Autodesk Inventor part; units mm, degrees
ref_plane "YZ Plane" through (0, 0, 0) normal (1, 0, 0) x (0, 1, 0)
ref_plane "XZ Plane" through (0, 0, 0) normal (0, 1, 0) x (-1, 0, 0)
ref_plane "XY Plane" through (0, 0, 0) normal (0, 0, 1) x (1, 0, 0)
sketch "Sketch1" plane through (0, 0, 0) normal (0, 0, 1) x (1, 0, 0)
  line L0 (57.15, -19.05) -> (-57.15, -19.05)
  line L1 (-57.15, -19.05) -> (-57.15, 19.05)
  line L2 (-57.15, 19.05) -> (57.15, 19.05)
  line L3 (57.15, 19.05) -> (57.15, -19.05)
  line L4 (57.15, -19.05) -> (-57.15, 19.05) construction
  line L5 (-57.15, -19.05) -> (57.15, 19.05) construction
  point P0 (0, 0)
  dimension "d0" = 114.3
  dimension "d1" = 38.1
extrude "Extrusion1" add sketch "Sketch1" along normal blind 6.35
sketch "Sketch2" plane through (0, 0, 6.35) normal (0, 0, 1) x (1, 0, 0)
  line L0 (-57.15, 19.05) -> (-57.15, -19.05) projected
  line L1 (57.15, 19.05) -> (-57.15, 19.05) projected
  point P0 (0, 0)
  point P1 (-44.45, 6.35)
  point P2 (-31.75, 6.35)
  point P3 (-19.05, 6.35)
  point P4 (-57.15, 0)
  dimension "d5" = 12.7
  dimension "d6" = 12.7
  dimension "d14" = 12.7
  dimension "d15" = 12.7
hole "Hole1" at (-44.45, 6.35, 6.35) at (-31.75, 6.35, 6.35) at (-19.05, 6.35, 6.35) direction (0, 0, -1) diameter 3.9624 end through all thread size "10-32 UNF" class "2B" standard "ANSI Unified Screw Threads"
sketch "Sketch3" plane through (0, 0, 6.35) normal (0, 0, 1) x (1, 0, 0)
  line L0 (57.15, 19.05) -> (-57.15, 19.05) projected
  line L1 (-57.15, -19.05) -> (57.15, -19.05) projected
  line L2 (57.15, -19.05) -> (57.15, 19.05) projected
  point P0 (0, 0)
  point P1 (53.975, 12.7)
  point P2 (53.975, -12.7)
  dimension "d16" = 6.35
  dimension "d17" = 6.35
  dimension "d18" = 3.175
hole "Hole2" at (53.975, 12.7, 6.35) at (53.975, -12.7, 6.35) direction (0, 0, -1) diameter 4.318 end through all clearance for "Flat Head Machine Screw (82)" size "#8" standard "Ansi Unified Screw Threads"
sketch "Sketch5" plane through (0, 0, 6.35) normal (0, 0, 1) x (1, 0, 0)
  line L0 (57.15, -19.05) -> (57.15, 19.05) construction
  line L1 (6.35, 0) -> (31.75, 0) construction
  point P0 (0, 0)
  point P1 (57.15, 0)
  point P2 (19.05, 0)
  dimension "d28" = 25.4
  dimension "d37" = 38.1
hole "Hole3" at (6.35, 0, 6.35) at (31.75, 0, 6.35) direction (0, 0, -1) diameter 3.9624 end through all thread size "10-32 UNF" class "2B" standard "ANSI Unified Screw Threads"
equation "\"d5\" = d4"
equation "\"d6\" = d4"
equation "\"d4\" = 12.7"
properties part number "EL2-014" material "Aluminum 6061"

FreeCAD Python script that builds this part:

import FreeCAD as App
import Part
import Sketcher

V = App.Vector
Q = App.Units.Quantity

doc = App.newDocument("Part")
body = doc.addObject("PartDesign::Body", "Body")

sketch1 = body.newObject("Sketcher::SketchObject", "Sketch")
sketch1.AttachmentSupport = (doc.getObject("XY_Plane"), [""])
sketch1.MapMode = "FlatFace"
sketch1.addGeometry([
    Part.LineSegment(V(-57, -19, 0), V(57, -19, 0)),
    Part.LineSegment(V(57, -19, 0), V(57, 19, 0)),
    Part.LineSegment(V(57, 19, 0), V(-57, 19, 0)),
    Part.LineSegment(V(-57, 19, 0), V(-57, -19, 0)),
], False)
sketch1.addConstraint([
    Sketcher.Constraint("Coincident", 0, 2, 1, 1),
    Sketcher.Constraint("Coincident", 1, 2, 2, 1),
    Sketcher.Constraint("Coincident", 2, 2, 3, 1),
    Sketcher.Constraint("Coincident", 3, 2, 0, 1),
    Sketcher.Constraint("Horizontal", 0),
    Sketcher.Constraint("Vertical", 1),
    Sketcher.Constraint("Horizontal", 2),
    Sketcher.Constraint("Vertical", 3),
    Sketcher.Constraint("Symmetric", 0, 2, 2, 2, -1, 1),
    Sketcher.Constraint("DistanceX", 0, 1, 0, 2, Q("4.5 in")),
    Sketcher.Constraint("DistanceY", 1, 1, 1, 2, Q("1.5 in")),
])
pad1 = body.newObject("PartDesign::Pad", "Pad")
pad1.Profile = sketch1
pad1.Length = Q("0.25 in")

sketch2 = body.newObject("Sketcher::SketchObject", "Sketch001")
sketch2.AttachmentSupport = (doc.getObject("XY_Plane"), [""])
sketch2.MapMode = "FlatFace"
sketch2.AttachmentOffset = App.Placement(V(0, 0, 0.25 * 25.4), App.Rotation())
sketch2.addGeometry([
    Part.Circle(V(-44.5, 6.3, 0), V(0, 0, 1), 2),
    Part.Circle(V(-31.8, 6.3, 0), V(0, 0, 1), 2),
    Part.Circle(V(-19.1, 6.3, 0), V(0, 0, 1), 2),
], False)
sketch2.addConstraint([
    Sketcher.Constraint("Equal", 0, 1),
    Sketcher.Constraint("Equal", 1, 2),
    Sketcher.Constraint("Horizontal", 0, 3, 1, 3),
    Sketcher.Constraint("Horizontal", 1, 3, 2, 3),
    Sketcher.Constraint("Diameter", 0, Q("0.156 in")),
    Sketcher.Constraint("DistanceX", 0, 3, 2, 3, Q("1 in")),
    Sketcher.Constraint("DistanceX", 0, 3, 1, 3, Q("0.5 in")),
    Sketcher.Constraint("DistanceX", 0, 3, -1, 1, Q("1.75 in")),
    Sketcher.Constraint("DistanceY", -1, 1, 0, 3, Q("0.25 in")),
])
doc.recompute()
hole = body.newObject("PartDesign::Hole", "Hole")
hole.Profile = sketch2
hole.ThreadType = "None"
hole.Diameter = Q("0.156 in")
hole.DepthType = "ThroughAll"

sketch3 = body.newObject("Sketcher::SketchObject", "Sketch002")
sketch3.AttachmentSupport = (doc.getObject("XY_Plane"), [""])
sketch3.MapMode = "FlatFace"
sketch3.AttachmentOffset = App.Placement(V(0, 0, 0.25 * 25.4), App.Rotation())
sketch3.addGeometry([
    Part.Circle(V(54, 12.7, 0), V(0, 0, 1), 2.2),
    Part.Circle(V(54, -12.7, 0), V(0, 0, 1), 2.2),
], False)
sketch3.addConstraint([
    Sketcher.Constraint("Equal", 0, 1),
    Sketcher.Constraint("Symmetric", 0, 3, 1, 3, -1),
    Sketcher.Constraint("Diameter", 0, Q("0.17 in")),
    Sketcher.Constraint("DistanceY", 1, 3, 0, 3, Q("1 in")),
    Sketcher.Constraint("DistanceX", -1, 1, 0, 3, Q("2.125 in")),
])
doc.recompute()
hole2 = body.newObject("PartDesign::Hole", "Hole001")
hole2.Profile = sketch3
hole2.ThreadType = "None"
hole2.Diameter = Q("0.17 in")
hole2.DepthType = "ThroughAll"

sketch4 = body.newObject("Sketcher::SketchObject", "Sketch003")
sketch4.AttachmentSupport = (doc.getObject("XY_Plane"), [""])
sketch4.MapMode = "FlatFace"
sketch4.AttachmentOffset = App.Placement(V(0, 0, 0.25 * 25.4), App.Rotation())
sketch4.addGeometry([
    Part.Circle(V(6.3, 0, 0), V(0, 0, 1), 2),
    Part.Circle(V(31.8, 0, 0), V(0, 0, 1), 2),
], False)
sketch4.addConstraint([
    Sketcher.Constraint("Equal", 0, 1),
    Sketcher.Constraint("PointOnObject", 0, 3, -1),
    Sketcher.Constraint("PointOnObject", 1, 3, -1),
    Sketcher.Constraint("Diameter", 0, Q("0.156 in")),
    Sketcher.Constraint("DistanceX", 0, 3, 1, 3, Q("1 in")),
    Sketcher.Constraint("DistanceX", -1, 1, 0, 3, Q("0.25 in")),
])
doc.recompute()
hole3 = body.newObject("PartDesign::Hole", "Hole002")
hole3.Profile = sketch4
hole3.ThreadType = "None"
hole3.Diameter = Q("0.156 in")
hole3.DepthType = "ThroughAll"

doc.recompute()
